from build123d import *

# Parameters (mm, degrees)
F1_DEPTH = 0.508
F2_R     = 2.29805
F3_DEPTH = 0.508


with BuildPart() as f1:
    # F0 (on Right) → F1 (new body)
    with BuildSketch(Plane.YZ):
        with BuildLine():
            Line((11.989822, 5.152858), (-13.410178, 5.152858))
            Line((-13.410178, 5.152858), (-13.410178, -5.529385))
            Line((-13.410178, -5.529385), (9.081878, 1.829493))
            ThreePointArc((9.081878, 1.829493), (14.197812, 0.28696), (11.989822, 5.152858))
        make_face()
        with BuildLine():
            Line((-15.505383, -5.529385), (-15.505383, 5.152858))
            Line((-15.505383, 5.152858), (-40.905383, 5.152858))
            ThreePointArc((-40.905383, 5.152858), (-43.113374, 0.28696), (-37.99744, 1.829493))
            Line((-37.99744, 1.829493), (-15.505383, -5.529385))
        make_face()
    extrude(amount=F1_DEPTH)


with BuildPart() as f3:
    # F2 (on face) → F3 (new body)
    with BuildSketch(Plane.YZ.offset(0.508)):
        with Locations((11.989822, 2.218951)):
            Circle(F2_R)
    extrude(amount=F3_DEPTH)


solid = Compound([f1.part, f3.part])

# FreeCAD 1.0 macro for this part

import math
import FreeCAD as App
import Part
import Sketcher

V = App.Vector
Q = App.Units.Quantity

doc = App.newDocument("Part")
body = doc.addObject("PartDesign::Body", "Body")
body.AllowCompound = True

sketch1 = body.newObject("Sketcher::SketchObject", "Sketch")
sketch1.AttachmentSupport = (doc.getObject("YZ_Plane"), [""])
sketch1.MapMode = "FlatFace"
sketch1.addGeometry(Part.LineSegment(V(12, 5.2, 0), V(-13.4, 5.2, 0)), False)
sketch1.addGeometry(Part.LineSegment(V(-13.4, 5.2, 0), V(-13.4, -5.5, 0)), False)
sketch1.addGeometry(Part.LineSegment(V(-13.4, -5.5, 0), V(9.1, 1.8, 0)), False)
sketch1.addGeometry(Part.ArcOfCircle(Part.Circle(V(12, 2.2, 0), V(0, 0, 1), 2.9), math.radians(-172), math.radians(90)), False)
sketch1.addGeometry(Part.LineSegment(V(-15.5, -5.5, 0), V(-15.5, 5.2, 0)), False)
sketch1.addGeometry(Part.LineSegment(V(-15.5, 5.2, 0), V(-40.9, 5.2, 0)), False)
sketch1.addGeometry(Part.ArcOfCircle(Part.Circle(V(-40.9, 2.2, 0), V(0, 0, 1), 2.9), math.radians(90), math.radians(352)), False)
sketch1.addGeometry(Part.LineSegment(V(-38, 1.8, 0), V(-15.5, -5.5, 0)), False)
sketch1.addConstraint(Sketcher.Constraint("Coincident", 0, 2, 1, 1))
sketch1.addConstraint(Sketcher.Constraint("Coincident", 1, 2, 2, 1))
sketch1.addConstraint(Sketcher.Constraint("Coincident", 2, 2, 3, 1))
sketch1.addConstraint(Sketcher.Constraint("Tangent", 3, 2, 0, 1))
sketch1.addConstraint(Sketcher.Constraint("Coincident", 4, 2, 5, 1))
sketch1.addConstraint(Sketcher.Constraint("Tangent", 5, 2, 6, 1))
sketch1.addConstraint(Sketcher.Constraint("Coincident", 6, 2, 7, 1))
sketch1.addConstraint(Sketcher.Constraint("Coincident", 7, 2, 4, 1))
sketch1.addConstraint(Sketcher.Constraint("Horizontal", 0))
sketch1.addConstraint(Sketcher.Constraint("Vertical", 1))
sketch1.addConstraint(Sketcher.Constraint("Vertical", 4))
sketch1.addConstraint(Sketcher.Constraint("Horizontal", 5))
sketch1.addConstraint(Sketcher.Constraint("Equal", 3, 6))
sketch1.addConstraint(Sketcher.Constraint("Horizontal", 3, 3, 6, 3))
sketch1.addConstraint(Sketcher.Constraint("Horizontal", 2, 2, 6, 2))
sketch1.addConstraint(Sketcher.Constraint("Horizontal", 1, 2, 7, 2))
sketch1.addConstraint(Sketcher.Constraint("Equal", 0, 5))
sketch1.addConstraint(Sketcher.Constraint("DistanceX", 0, 2, 0, 1, Q("1 in")))
sketch1.addConstraint(Sketcher.Constraint("Radius", 3, 2.933907))
sketch1.addConstraint(Sketcher.Constraint("DistanceY", 1, 2, 1, 1, 10.682243))
sketch1.addConstraint(Sketcher.Constraint("DistanceX", -1, 1, 3, 3, 11.989821))
sketch1.addConstraint(Sketcher.Constraint("DistanceY", -1, 1, 3, 3, 2.218951))
sketch1.addConstraint(Sketcher.Constraint("DistanceX", 6, 2, -1, 1, 37.99744))
sketch1.addConstraint(Sketcher.Constraint("DistanceY", 1, 2, 2, 2, 7.358878))
pad1 = body.newObject("PartDesign::Pad", "Pad")
pad1.Profile = sketch1
pad1.Length = Q("0.02 in")
body2 = doc.addObject("PartDesign::Body", "Body001")

sketch2 = body2.newObject("Sketcher::SketchObject", "Sketch001")
sketch2.AttachmentSupport = (doc.getObject("YZ_Plane001"), [""])
sketch2.MapMode = "FlatFace"
sketch2.AttachmentOffset = App.Placement(V(0, 0, 0.02 * 25.4), App.Rotation())
sketch2.addGeometry(Part.Circle(V(12, 2.2, 0), V(0, 0, 1), 2.3), False)
sketch2.addConstraint(Sketcher.Constraint("Diameter", 0, 4.5961))
sketch2.addConstraint(Sketcher.Constraint("DistanceY", -1, 1, 0, 3, 2.218951))
sketch2.addConstraint(Sketcher.Constraint("DistanceX", -1, 1, 0, 3, 11.989822))
pad2 = body2.newObject("PartDesign::Pad", "Pad001")
pad2.Profile = sketch2
pad2.Length = Q("0.02 in")

doc.recompute()
